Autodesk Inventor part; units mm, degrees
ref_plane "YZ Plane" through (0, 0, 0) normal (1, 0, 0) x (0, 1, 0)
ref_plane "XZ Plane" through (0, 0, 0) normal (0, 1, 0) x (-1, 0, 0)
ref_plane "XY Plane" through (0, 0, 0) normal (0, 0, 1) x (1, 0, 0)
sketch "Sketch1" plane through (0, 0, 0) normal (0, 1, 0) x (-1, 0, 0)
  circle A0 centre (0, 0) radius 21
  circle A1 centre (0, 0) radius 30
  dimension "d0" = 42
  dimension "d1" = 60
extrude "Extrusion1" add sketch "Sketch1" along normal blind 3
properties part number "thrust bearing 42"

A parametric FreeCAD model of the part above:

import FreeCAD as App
import Part
import Sketcher
Q = App.Units.Quantity

doc = App.newDocument("Part")
body = doc.addObject("PartDesign::Body", "Body")

# Sketch on XZ plane
sketch1 = body.newObject("Sketcher::SketchObject", "Sketch")
sketch1.AttachmentSupport = (doc.getObject("XZ_Plane"), [""])
sketch1.MapMode = "FlatFace"
sketch1.addGeometry([
    Part.Circle(App.Vector(0, 0, 0), App.Vector(0, 0, 1), 30),
    Part.Circle(App.Vector(0, 0, 0), App.Vector(0, 0, 1), 21),
], False)
sketch1.addConstraint([
    Sketcher.Constraint("Coincident", 0, 3, -1, 1),
    Sketcher.Constraint("Coincident", 1, 3, -1, 1),
    Sketcher.Constraint("Diameter", 0, Q("60 mm")),
    Sketcher.Constraint("Diameter", 1, Q("42 mm")),
])
pad1 = body.newObject("PartDesign::Pad", "Pad")
pad1.Profile = sketch1
pad1.Length = 3
pad1.Reversed = True

doc.recompute()
